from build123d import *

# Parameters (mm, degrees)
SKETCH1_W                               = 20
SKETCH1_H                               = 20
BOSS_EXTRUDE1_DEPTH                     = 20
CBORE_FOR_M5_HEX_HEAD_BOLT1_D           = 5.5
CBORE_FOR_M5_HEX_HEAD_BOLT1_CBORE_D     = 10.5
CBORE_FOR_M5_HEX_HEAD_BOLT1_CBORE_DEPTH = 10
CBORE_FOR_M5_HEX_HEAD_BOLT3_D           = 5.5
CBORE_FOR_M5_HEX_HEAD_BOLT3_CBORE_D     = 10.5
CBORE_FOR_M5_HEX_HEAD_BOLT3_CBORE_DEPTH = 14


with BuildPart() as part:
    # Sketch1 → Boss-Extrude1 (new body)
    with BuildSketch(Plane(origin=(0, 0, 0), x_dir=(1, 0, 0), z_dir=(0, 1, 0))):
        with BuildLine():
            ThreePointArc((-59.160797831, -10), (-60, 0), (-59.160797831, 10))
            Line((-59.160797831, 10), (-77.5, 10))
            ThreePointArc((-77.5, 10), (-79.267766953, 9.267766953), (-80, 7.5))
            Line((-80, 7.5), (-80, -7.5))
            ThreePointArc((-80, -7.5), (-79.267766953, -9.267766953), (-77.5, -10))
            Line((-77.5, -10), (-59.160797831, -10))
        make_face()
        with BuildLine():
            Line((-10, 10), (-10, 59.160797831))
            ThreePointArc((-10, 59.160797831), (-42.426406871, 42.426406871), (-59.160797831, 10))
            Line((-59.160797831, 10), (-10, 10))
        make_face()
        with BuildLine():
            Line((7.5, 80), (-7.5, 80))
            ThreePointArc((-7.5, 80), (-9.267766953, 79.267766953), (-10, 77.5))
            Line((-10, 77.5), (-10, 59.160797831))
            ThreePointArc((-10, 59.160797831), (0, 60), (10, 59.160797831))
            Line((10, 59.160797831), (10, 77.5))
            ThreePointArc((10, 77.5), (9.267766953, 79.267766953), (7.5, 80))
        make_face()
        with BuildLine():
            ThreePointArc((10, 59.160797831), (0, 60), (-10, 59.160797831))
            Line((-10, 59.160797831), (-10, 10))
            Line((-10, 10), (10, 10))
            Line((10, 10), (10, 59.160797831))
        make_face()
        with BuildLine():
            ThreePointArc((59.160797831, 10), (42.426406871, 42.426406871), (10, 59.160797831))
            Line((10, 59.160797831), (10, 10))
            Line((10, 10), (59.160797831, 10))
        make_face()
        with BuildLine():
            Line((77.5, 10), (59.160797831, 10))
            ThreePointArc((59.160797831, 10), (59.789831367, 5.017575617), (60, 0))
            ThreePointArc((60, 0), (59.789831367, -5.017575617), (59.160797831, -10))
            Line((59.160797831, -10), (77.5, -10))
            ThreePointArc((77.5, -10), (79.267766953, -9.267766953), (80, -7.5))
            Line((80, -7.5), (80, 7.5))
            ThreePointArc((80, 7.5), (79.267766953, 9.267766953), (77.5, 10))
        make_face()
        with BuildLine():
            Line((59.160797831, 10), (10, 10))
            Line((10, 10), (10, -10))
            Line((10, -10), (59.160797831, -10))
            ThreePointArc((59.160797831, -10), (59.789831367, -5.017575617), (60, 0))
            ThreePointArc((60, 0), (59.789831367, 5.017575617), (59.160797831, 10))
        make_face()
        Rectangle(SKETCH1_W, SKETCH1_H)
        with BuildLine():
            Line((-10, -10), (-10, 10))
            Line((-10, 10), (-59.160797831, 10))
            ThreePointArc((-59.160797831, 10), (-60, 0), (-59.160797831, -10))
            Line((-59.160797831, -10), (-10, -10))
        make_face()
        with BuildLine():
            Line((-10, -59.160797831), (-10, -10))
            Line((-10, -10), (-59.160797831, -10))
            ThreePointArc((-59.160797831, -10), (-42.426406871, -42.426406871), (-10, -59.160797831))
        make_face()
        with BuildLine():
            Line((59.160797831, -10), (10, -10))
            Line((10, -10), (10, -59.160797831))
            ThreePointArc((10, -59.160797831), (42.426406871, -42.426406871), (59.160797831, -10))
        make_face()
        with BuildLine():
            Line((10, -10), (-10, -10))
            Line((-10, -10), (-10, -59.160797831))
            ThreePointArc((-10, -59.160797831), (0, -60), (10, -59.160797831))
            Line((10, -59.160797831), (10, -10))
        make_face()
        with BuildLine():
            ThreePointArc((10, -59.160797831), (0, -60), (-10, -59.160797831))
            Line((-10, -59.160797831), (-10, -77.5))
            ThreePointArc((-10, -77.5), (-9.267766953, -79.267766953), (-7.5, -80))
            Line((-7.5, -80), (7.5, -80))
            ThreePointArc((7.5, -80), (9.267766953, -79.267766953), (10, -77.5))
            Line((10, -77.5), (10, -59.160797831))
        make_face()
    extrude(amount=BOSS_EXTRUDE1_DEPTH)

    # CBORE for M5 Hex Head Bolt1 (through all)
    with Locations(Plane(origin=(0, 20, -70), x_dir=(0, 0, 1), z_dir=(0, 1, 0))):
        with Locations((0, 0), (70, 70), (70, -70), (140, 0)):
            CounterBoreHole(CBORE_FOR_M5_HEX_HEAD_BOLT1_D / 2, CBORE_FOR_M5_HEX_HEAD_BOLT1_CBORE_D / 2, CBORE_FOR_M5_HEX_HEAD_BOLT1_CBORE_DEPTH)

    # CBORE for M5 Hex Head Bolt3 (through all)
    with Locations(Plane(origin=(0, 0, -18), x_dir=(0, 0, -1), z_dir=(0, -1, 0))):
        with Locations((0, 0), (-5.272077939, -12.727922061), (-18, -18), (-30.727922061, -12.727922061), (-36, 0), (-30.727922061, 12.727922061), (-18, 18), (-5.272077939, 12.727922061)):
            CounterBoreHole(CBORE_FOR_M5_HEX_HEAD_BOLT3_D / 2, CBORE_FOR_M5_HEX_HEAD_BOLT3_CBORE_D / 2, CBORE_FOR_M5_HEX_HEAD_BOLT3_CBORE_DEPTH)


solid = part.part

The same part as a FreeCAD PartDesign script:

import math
import FreeCAD as App
import Part
import Sketcher
from FreeCAD import Vector
Q = App.Units.Quantity

doc = App.newDocument("Part")
body = doc.addObject("PartDesign::Body", "Body")

sketch1 = body.newObject("Sketcher::SketchObject", "Sketch")
sketch1.AttachmentSupport = (doc.getObject("XZ_Plane"), [""])
sketch1.MapMode = "FlatFace"
sketch1.addGeometry([
    Part.LineSegment(Vector(-59.2, -10, 0), Vector(-77.5, -10, 0)),
    Part.ArcOfCircle(Part.Circle(Vector(-77.5, -7.5, 0), Vector(0, 0, 1), 2.5), math.radians(180), math.radians(270)),
    Part.LineSegment(Vector(-80, -7.5, 0), Vector(-80, 7.5, 0)),
    Part.ArcOfCircle(Part.Circle(Vector(-77.5, 7.5, 0), Vector(0, 0, 1), 2.5), math.radians(90), math.radians(180)),
    Part.LineSegment(Vector(-77.5, 10, 0), Vector(-59.2, 10, 0)),
    Part.ArcOfCircle(Part.Circle(Vector(0, 0, 0), Vector(0, 0, 1), 60), math.radians(100), math.radians(170)),
    Part.LineSegment(Vector(-10, 59.2, 0), Vector(-10, 77.5, 0)),
    Part.ArcOfCircle(Part.Circle(Vector(-7.5, 77.5, 0), Vector(0, 0, 1), 2.5), math.radians(90), math.radians(180)),
    Part.LineSegment(Vector(-7.5, 80, 0), Vector(7.5, 80, 0)),
    Part.ArcOfCircle(Part.Circle(Vector(7.5, 77.5, 0), Vector(0, 0, 1), 2.5), math.radians(0), math.radians(90)),
    Part.LineSegment(Vector(10, 77.5, 0), Vector(10, 59.2, 0)),
    Part.ArcOfCircle(Part.Circle(Vector(0, 0, 0), Vector(0, 0, 1), 60), math.radians(10), math.radians(80)),
    Part.LineSegment(Vector(59.2, 10, 0), Vector(77.5, 10, 0)),
    Part.ArcOfCircle(Part.Circle(Vector(77.5, 7.5, 0), Vector(0, 0, 1), 2.5), math.radians(0), math.radians(90)),
    Part.LineSegment(Vector(80, 7.5, 0), Vector(80, -7.5, 0)),
    Part.ArcOfCircle(Part.Circle(Vector(77.5, -7.5, 0), Vector(0, 0, 1), 2.5), math.radians(-90), math.radians(0)),
    Part.LineSegment(Vector(77.5, -10, 0), Vector(59.2, -10, 0)),
    Part.ArcOfCircle(Part.Circle(Vector(0, 0, 0), Vector(0, 0, 1), 60), math.radians(-80), math.radians(-10)),
    Part.LineSegment(Vector(10, -59.2, 0), Vector(10, -77.5, 0)),
    Part.ArcOfCircle(Part.Circle(Vector(7.5, -77.5, 0), Vector(0, 0, 1), 2.5), math.radians(-90), math.radians(0)),
    Part.LineSegment(Vector(7.5, -80, 0), Vector(-7.5, -80, 0)),
    Part.ArcOfCircle(Part.Circle(Vector(-7.5, -77.5, 0), Vector(0, 0, 1), 2.5), math.radians(180), math.radians(270)),
    Part.LineSegment(Vector(-10, -77.5, 0), Vector(-10, -59.2, 0)),
    Part.ArcOfCircle(Part.Circle(Vector(0, 0, 0), Vector(0, 0, 1), 60), math.radians(-170), math.radians(-100)),
], False)
sketch1.addConstraint([
    Sketcher.Constraint("Tangent", 0, 2, 1, 2),
    Sketcher.Constraint("Tangent", 1, 1, 2, 1),
    Sketcher.Constraint("Tangent", 2, 2, 3, 2),
    Sketcher.Constraint("Tangent", 3, 1, 4, 1),
    Sketcher.Constraint("Coincident", 4, 2, 5, 2),
    Sketcher.Constraint("Coincident", 5, 1, 6, 1),
    Sketcher.Constraint("Tangent", 6, 2, 7, 2),
    Sketcher.Constraint("Tangent", 7, 1, 8, 1),
    Sketcher.Constraint("Tangent", 8, 2, 9, 2),
    Sketcher.Constraint("Tangent", 9, 1, 10, 1),
    Sketcher.Constraint("Coincident", 10, 2, 11, 2),
    Sketcher.Constraint("Coincident", 11, 1, 12, 1),
    Sketcher.Constraint("Tangent", 12, 2, 13, 2),
    Sketcher.Constraint("Tangent", 13, 1, 14, 1),
    Sketcher.Constraint("Tangent", 14, 2, 15, 2),
    Sketcher.Constraint("Tangent", 15, 1, 16, 1),
    Sketcher.Constraint("Coincident", 16, 2, 17, 2),
    Sketcher.Constraint("Coincident", 17, 1, 18, 1),
    Sketcher.Constraint("Tangent", 18, 2, 19, 2),
    Sketcher.Constraint("Tangent", 19, 1, 20, 1),
    Sketcher.Constraint("Tangent", 20, 2, 21, 2),
    Sketcher.Constraint("Tangent", 21, 1, 22, 1),
    Sketcher.Constraint("Coincident", 22, 2, 23, 2),
    Sketcher.Constraint("Coincident", 23, 1, 0, 1),
    Sketcher.Constraint("Horizontal", 0),
    Sketcher.Constraint("Vertical", 2),
    Sketcher.Constraint("Horizontal", 4),
    Sketcher.Constraint("Vertical", 6),
    Sketcher.Constraint("Horizontal", 8),
    Sketcher.Constraint("Vertical", 10),
    Sketcher.Constraint("Horizontal", 12),
    Sketcher.Constraint("Vertical", 14),
    Sketcher.Constraint("Horizontal", 16),
    Sketcher.Constraint("Vertical", 18),
    Sketcher.Constraint("Horizontal", 20),
    Sketcher.Constraint("Vertical", 22),
    Sketcher.Constraint("Coincident", 5, 3, -1, 1),
    Sketcher.Constraint("Coincident", 11, 3, -1, 1),
    Sketcher.Constraint("Coincident", 17, 3, -1, 1),
    Sketcher.Constraint("Coincident", 23, 3, -1, 1),
    Sketcher.Constraint("Equal", 1, 3),
    Sketcher.Constraint("Equal", 3, 7),
    Sketcher.Constraint("Equal", 7, 9),
    Sketcher.Constraint("Equal", 5, 11),
    Sketcher.Constraint("Equal", 9, 13),
    Sketcher.Constraint("Equal", 13, 15),
    Sketcher.Constraint("Equal", 11, 17),
    Sketcher.Constraint("Equal", 15, 19),
    Sketcher.Constraint("Equal", 19, 21),
    Sketcher.Constraint("Equal", 17, 23),
    Sketcher.Constraint("Symmetric", 1, 3, 13, 3, -1, 1),
    Sketcher.Constraint("Symmetric", 7, 3, 19, 3, -1, 1),
    Sketcher.Constraint("Horizontal", 3, 3, 13, 3),
    Sketcher.Constraint("Horizontal", 1, 3, 15, 3),
    Sketcher.Constraint("Horizontal", 5, 1, 10, 2),
    Sketcher.Constraint("Horizontal", 17, 1, 22, 2),
    Sketcher.Constraint("Equal", 20, 2),
    Sketcher.Constraint("Equal", 16, 6),
    Sketcher.Constraint("Radius", 5, Q("60 mm")),
    Sketcher.Constraint("Radius", 1, Q("2.5 mm")),
    Sketcher.Constraint("DistanceX", 8, 1, 8, 2, Q("15 mm")),
    Sketcher.Constraint("DistanceX", 1, 1, -1, 1, Q("80 mm")),
])
pad1 = body.newObject("PartDesign::Pad", "Pad")
pad1.Profile = sketch1
pad1.Length = 20
pad1.Reversed = True

sketch2 = body.newObject("Sketcher::SketchObject", "Sketch001")
sketch2.AttachmentSupport = (doc.getObject("XZ_Plane"), [""])
sketch2.MapMode = "FlatFace"
sketch2.AttachmentOffset = App.Placement(Vector(0, 0, -20), App.Rotation())
sketch2.addGeometry([
    Part.Circle(Vector(0, -70, 0), Vector(0, 0, 1), 2.8),
    Part.Circle(Vector(70, 0, 0), Vector(0, 0, 1), 2.8),
    Part.Circle(Vector(-70, 0, 0), Vector(0, 0, 1), 2.8),
    Part.Circle(Vector(0, 70, 0), Vector(0, 0, 1), 2.8),
], False)
sketch2.addConstraint([
    Sketcher.Constraint("Equal", 0, 1),
    Sketcher.Constraint("Equal", 1, 2),
    Sketcher.Constraint("Equal", 2, 3),
    Sketcher.Constraint("Symmetric", 1, 3, 2, 3, -1, 1),
    Sketcher.Constraint("Symmetric", 0, 3, 3, 3, -1, 1),
    Sketcher.Constraint("PointOnObject", 0, 3, -2),
    Sketcher.Constraint("PointOnObject", 1, 3, -1),
    Sketcher.Constraint("Diameter", 0, Q("5.5 mm")),
    Sketcher.Constraint("DistanceY", 0, 3, -1, 1, Q("70 mm")),
    Sketcher.Constraint("DistanceX", -1, 1, 1, 3, Q("70 mm")),
])
doc.recompute()
hole = body.newObject("PartDesign::Hole", "Hole")
hole.Profile = sketch2
hole.ThreadType = "None"
hole.Diameter = 5.5
hole.DepthType = "ThroughAll"
hole.HoleCutType = "Counterbore"
hole.HoleCutDiameter = 10.5
hole.HoleCutDepth = 10
hole.Reversed = True

sketch3 = body.newObject("Sketcher::SketchObject", "Sketch002")
sketch3.AttachmentSupport = (doc.getObject("XZ_Plane"), [""])
sketch3.MapMode = "FlatFace"
sketch3.addGeometry([
    Part.Circle(Vector(0, -18, 0), Vector(0, 0, 1), 2.8),
    Part.Circle(Vector(-12.7, -12.7, 0), Vector(0, 0, 1), 2.8),
    Part.Circle(Vector(-18, 0, 0), Vector(0, 0, 1), 2.8),
    Part.Circle(Vector(-12.7, 12.7, 0), Vector(0, 0, 1), 2.8),
    Part.Circle(Vector(0, 18, 0), Vector(0, 0, 1), 2.8),
    Part.Circle(Vector(12.7, 12.7, 0), Vector(0, 0, 1), 2.8),
    Part.Circle(Vector(18, 0, 0), Vector(0, 0, 1), 2.8),
    Part.Circle(Vector(12.7, -12.7, 0), Vector(0, 0, 1), 2.8),
], False)
sketch3.addConstraint([
    Sketcher.Constraint("Equal", 0, 1),
    Sketcher.Constraint("Equal", 1, 2),
    Sketcher.Constraint("Equal", 2, 3),
    Sketcher.Constraint("Equal", 3, 4),
    Sketcher.Constraint("Equal", 4, 5),
    Sketcher.Constraint("Equal", 5, 6),
    Sketcher.Constraint("Equal", 6, 7),
    Sketcher.Constraint("Symmetric", 0, 3, 4, 3, -1, 1),
    Sketcher.Constraint("Symmetric", 1, 3, 5, 3, -1, 1),
    Sketcher.Constraint("Symmetric", 2, 3, 6, 3, -1, 1),
    Sketcher.Constraint("Symmetric", 3, 3, 7, 3, -1, 1),
    Sketcher.Constraint("Symmetric", 3, 3, 5, 3, -2),
    Sketcher.Constraint("PointOnObject", 0, 3, -2),
    Sketcher.Constraint("PointOnObject", 2, 3, -1),
    Sketcher.Constraint("Diameter", 0, Q("5.5 mm")),
    Sketcher.Constraint("DistanceY", 0, 3, -1, 1, Q("18 mm")),
    Sketcher.Constraint("DistanceX", 2, 3, -1, 1, Q("18 mm")),
    Sketcher.Constraint("DistanceX", 1, 3, -1, 1, Q("12.727922 mm")),
    Sketcher.Constraint("DistanceY", 1, 3, -1, 1, Q("12.727922 mm")),
])
doc.recompute()
hole2 = body.newObject("PartDesign::Hole", "Hole001")
hole2.Profile = sketch3
hole2.ThreadType = "None"
hole2.Diameter = 5.5
hole2.DepthType = "ThroughAll"
hole2.HoleCutType = "Counterbore"
hole2.HoleCutDiameter = 10.5
hole2.HoleCutDepth = 14

doc.recompute()
